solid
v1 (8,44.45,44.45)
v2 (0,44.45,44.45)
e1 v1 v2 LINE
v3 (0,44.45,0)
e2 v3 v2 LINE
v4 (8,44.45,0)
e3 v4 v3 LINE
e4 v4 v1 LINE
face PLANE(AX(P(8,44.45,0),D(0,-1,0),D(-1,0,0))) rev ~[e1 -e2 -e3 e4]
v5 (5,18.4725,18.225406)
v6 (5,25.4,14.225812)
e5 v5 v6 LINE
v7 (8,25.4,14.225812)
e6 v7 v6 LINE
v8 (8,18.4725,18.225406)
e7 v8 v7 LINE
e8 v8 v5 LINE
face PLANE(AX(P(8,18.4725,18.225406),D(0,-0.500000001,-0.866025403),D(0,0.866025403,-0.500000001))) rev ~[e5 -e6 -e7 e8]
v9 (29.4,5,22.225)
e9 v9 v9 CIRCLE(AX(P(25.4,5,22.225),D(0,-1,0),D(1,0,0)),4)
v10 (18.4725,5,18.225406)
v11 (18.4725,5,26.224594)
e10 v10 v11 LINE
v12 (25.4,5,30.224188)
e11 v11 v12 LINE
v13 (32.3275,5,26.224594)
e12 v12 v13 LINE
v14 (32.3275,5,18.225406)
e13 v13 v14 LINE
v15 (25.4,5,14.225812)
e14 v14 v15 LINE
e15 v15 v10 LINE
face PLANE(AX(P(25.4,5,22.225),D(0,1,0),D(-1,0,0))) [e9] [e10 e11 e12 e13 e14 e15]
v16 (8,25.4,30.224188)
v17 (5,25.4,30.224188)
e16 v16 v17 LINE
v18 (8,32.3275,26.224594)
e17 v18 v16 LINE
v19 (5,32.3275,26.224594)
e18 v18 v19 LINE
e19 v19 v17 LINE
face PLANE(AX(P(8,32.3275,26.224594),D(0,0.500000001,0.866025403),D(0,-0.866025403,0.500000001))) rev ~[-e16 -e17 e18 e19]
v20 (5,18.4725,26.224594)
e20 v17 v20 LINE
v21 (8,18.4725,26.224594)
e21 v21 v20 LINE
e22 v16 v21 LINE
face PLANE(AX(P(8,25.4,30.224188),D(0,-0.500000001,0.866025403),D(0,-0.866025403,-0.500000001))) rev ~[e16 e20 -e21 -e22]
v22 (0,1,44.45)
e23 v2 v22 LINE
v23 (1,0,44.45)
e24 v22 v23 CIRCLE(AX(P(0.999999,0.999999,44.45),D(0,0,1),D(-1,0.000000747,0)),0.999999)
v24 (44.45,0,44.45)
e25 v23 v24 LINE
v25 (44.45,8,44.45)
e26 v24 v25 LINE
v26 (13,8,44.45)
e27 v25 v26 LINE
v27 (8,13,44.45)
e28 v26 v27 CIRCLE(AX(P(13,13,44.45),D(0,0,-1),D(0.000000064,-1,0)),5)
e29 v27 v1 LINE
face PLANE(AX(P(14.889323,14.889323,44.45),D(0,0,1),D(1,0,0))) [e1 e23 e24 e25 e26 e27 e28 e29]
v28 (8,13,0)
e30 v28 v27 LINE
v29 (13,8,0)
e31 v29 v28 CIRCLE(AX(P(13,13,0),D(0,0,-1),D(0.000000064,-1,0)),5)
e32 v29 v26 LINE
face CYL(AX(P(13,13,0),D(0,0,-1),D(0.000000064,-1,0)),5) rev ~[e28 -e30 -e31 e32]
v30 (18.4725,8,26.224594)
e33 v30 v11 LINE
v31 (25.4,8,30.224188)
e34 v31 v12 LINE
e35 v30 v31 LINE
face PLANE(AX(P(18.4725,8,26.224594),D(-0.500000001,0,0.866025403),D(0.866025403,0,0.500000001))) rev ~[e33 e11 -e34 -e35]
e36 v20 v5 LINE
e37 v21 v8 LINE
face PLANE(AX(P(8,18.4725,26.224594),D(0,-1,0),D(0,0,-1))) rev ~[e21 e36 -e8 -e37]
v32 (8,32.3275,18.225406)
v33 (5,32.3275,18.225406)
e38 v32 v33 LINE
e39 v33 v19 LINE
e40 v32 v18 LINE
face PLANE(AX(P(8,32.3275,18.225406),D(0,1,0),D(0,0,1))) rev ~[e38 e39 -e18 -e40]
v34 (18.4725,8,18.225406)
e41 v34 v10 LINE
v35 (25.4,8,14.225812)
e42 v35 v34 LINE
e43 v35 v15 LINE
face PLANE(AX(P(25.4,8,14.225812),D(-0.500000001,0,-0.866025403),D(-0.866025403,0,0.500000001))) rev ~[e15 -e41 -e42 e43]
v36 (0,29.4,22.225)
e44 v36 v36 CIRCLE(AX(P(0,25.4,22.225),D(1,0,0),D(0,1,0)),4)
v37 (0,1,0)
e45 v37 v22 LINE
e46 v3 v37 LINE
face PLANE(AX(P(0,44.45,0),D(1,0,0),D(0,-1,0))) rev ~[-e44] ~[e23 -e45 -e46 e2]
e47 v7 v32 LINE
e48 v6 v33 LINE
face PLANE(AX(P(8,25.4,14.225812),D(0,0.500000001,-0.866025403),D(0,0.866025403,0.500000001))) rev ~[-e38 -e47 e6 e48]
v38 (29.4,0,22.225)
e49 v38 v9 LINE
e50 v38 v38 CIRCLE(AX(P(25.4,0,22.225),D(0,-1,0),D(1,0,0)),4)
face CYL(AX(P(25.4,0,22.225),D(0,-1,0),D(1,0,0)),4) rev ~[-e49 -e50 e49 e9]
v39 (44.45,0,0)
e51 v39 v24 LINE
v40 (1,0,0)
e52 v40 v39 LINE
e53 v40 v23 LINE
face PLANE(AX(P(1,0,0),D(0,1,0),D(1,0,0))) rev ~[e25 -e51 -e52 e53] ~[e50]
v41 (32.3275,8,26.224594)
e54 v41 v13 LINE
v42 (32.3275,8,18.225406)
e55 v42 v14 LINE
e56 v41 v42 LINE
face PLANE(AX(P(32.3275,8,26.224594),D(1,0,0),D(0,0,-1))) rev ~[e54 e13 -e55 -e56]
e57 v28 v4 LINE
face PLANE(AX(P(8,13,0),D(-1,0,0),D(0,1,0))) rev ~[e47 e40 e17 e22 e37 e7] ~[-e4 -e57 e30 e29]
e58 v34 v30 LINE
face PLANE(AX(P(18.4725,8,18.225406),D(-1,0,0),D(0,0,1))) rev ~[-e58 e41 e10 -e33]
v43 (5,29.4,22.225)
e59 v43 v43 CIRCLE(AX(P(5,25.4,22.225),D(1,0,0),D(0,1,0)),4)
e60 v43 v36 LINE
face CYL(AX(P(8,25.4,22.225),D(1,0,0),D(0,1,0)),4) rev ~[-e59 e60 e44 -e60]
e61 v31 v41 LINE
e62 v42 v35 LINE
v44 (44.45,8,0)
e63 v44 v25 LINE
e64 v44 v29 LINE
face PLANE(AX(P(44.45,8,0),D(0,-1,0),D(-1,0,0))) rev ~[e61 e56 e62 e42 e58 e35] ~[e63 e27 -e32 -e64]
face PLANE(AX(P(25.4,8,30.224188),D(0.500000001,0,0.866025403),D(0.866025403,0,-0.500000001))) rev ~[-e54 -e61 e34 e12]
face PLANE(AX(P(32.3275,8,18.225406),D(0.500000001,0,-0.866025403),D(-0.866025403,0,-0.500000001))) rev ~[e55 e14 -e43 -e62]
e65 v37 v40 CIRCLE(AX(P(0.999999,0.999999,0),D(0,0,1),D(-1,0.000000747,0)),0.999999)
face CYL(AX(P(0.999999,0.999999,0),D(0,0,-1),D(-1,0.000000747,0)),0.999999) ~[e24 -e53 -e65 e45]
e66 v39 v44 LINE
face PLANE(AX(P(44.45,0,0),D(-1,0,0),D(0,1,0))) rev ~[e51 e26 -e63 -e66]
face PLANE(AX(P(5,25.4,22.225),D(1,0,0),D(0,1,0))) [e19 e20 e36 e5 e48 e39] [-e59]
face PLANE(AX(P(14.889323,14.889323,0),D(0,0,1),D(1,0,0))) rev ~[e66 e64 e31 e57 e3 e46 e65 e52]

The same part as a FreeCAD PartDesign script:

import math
import FreeCAD as App
import Part
import Sketcher

V = App.Vector
Q = App.Units.Quantity


def add_polygon(sketch, points):
    """Adds a closed chain of lines whose ends are joined by coincident constraints."""
    first, n = sketch.GeometryCount, len(points)
    for a, b in zip(points, points[1:] + points[:1]):
        sketch.addGeometry(Part.LineSegment(App.Vector(*a, 0), App.Vector(*b, 0)), False)
    for i in range(n):
        sketch.addConstraint(Sketcher.Constraint("Coincident", first + i, 2, first + (i + 1) % n, 1))

doc = App.newDocument("Part")
body = doc.addObject("PartDesign::Body", "Body")

# Sketch on XY plane
sketch1 = body.newObject("Sketcher::SketchObject", "Sketch")
sketch1.AttachmentSupport = (doc.getObject("XY_Plane"), [""])
sketch1.MapMode = "FlatFace"
sketch1.addGeometry([
    Part.LineSegment(V(8, 44.5, 0), V(0, 44.5, 0)),  # 0
    Part.LineSegment(V(0, 44.5, 0), V(0, 1, 0)),  # 1
    Part.ArcOfCircle(Part.Circle(V(1, 1, 0), V(0, 0, 1), 1), math.radians(180), math.radians(270)),  # 2
    Part.LineSegment(V(1, 0, 0), V(44.5, 0, 0)),  # 3
    Part.LineSegment(V(44.5, 0, 0), V(44.5, 8, 0)),  # 4
    Part.LineSegment(V(44.5, 8, 0), V(13, 8, 0)),  # 5
    Part.ArcOfCircle(Part.Circle(V(13, 13, 0), V(0, 0, 1), 5), math.radians(180), math.radians(270)),  # 6
    Part.LineSegment(V(8, 13, 0), V(8, 44.5, 0)),  # 7
], False)
sketch1.addConstraint([
    Sketcher.Constraint("Coincident", 0, 2, 1, 1),
    Sketcher.Constraint("Tangent", 1, 2, 2, 1),
    Sketcher.Constraint("Tangent", 2, 2, 3, 1),
    Sketcher.Constraint("Coincident", 3, 2, 4, 1),
    Sketcher.Constraint("Coincident", 4, 2, 5, 1),
    Sketcher.Constraint("Tangent", 5, 2, 6, 2),
    Sketcher.Constraint("Tangent", 6, 1, 7, 1),
    Sketcher.Constraint("Coincident", 7, 2, 0, 1),
    Sketcher.Constraint("Horizontal", 0),
    Sketcher.Constraint("Vertical", 1),
    Sketcher.Constraint("Horizontal", 3),
    Sketcher.Constraint("Vertical", 4),
    Sketcher.Constraint("Horizontal", 5),
    Sketcher.Constraint("Vertical", 7),
    Sketcher.Constraint("PointOnObject", 0, 2, -2),
    Sketcher.Constraint("PointOnObject", 2, 2, -1),
    Sketcher.Constraint("Equal", 3, 1),
    Sketcher.Constraint("Equal", 0, 4),
    Sketcher.Constraint("Radius", 2, 0.999999),
    Sketcher.Constraint("Radius", 6, 5.0),
    Sketcher.Constraint("DistanceX", 0, 2, 0, 1, 8.0),
    Sketcher.Constraint("DistanceX", 3, 1, 3, 2, 43.45),
])
pad1 = body.newObject("PartDesign::Pad", "Pad")
pad1.Profile = sketch1
pad1.Length = 44.45

# Sketch on YZ plane
sketch2 = body.newObject("Sketcher::SketchObject", "Sketch001")
sketch2.AttachmentSupport = (doc.getObject("YZ_Plane"), [""])
sketch2.MapMode = "FlatFace"
sketch2.AttachmentOffset = App.Placement(V(0, 0, 8), App.Rotation())
sketch2.addGeometry(Part.Circle(V(25.4, 22.2, 0), V(0, 0, 1), 4), False)
sketch2.addConstraint([
    Sketcher.Constraint("Diameter", 0, 8.0),
    Sketcher.Constraint("DistanceX", -1, 1, 0, 3, 25.4),
    Sketcher.Constraint("DistanceY", -1, 1, 0, 3, 22.225),
])
pocket1 = body.newObject("PartDesign::Pocket", "Pocket")
pocket1.Profile = sketch2
pocket1.Type = "ThroughAll"

# Sketch on XZ plane
sketch3 = body.newObject("Sketcher::SketchObject", "Sketch002")
sketch3.AttachmentSupport = (doc.getObject("XZ_Plane"), [""])
sketch3.MapMode = "FlatFace"
sketch3.addGeometry(Part.Circle(V(25.4, 22.2, 0), V(0, 0, 1), 4), False)
sketch3.addConstraint([
    Sketcher.Constraint("Diameter", 0, 8.0),
    Sketcher.Constraint("DistanceX", -1, 1, 0, 3, 25.4),
    Sketcher.Constraint("DistanceY", -1, 1, 0, 3, 22.225),
])
pocket2 = body.newObject("PartDesign::Pocket", "Pocket001")
pocket2.Profile = sketch3
pocket2.Type = "ThroughAll"

# Sketch on YZ plane
sketch4 = body.newObject("Sketcher::SketchObject", "Sketch003")
sketch4.AttachmentSupport = (doc.getObject("YZ_Plane"), [""])
sketch4.MapMode = "FlatFace"
sketch4.AttachmentOffset = App.Placement(V(0, 0, 8), App.Rotation())
add_polygon(sketch4, [(25, 14), (32, 18), (32, 26), (25, 30), (18, 26), (18, 18)])  # lines 0-5
sketch4.addConstraint([
    Sketcher.Constraint("Vertical", 1),
    Sketcher.Constraint("Vertical", 4),
    Sketcher.Constraint("Parallel", 0, 3),
    Sketcher.Constraint("Parallel", 2, 5),
    Sketcher.Constraint("Horizontal", 1, 2, 3, 2),
    Sketcher.Constraint("Horizontal", 0, 2, 4, 2),
    Sketcher.Constraint("Vertical", 2, 2, 5, 2),
    Sketcher.Constraint("Angle", 0, Q("30 deg")),
    Sketcher.Constraint("DistanceX", -1, 1, 2, 2, 25.4),
    Sketcher.Constraint("DistanceX", 3, 2, 1, 2, 13.855),
    Sketcher.Constraint("DistanceY", 1, 1, 1, 2, 7.999188),
    Sketcher.Constraint("DistanceY", -1, 1, 2, 2, 30.224188),
])
pocket3 = body.newObject("PartDesign::Pocket", "Pocket002")
pocket3.Profile = sketch4
pocket3.Length = 3

# Sketch on XZ plane
sketch5 = body.newObject("Sketcher::SketchObject", "Sketch004")
sketch5.AttachmentSupport = (doc.getObject("XZ_Plane"), [""])
sketch5.MapMode = "FlatFace"
sketch5.AttachmentOffset = App.Placement(V(0, 0, -8), App.Rotation())
add_polygon(sketch5, [(25, 30), (32, 26), (32, 18), (25, 14), (18, 18), (18, 26)])  # lines 0-5
sketch5.addConstraint([
    Sketcher.Constraint("Vertical", 1),
    Sketcher.Constraint("Vertical", 4),
    Sketcher.Constraint("Parallel", 0, 3),
    Sketcher.Constraint("Parallel", 2, 5),
    Sketcher.Constraint("Horizontal", 1, 2, 3, 2),
    Sketcher.Constraint("Horizontal", 0, 2, 4, 2),
    Sketcher.Constraint("Vertical", 2, 2, 5, 2),
    Sketcher.Constraint("Angle", 0, Q("-30 deg")),
    Sketcher.Constraint("DistanceX", -1, 1, 2, 2, 25.4),
    Sketcher.Constraint("DistanceX", 3, 2, 1, 2, 13.855),
    Sketcher.Constraint("DistanceY", 1, 2, 1, 1, 7.999188),
    Sketcher.Constraint("DistanceY", -1, 1, 5, 2, 30.224188),
])
pocket4 = body.newObject("PartDesign::Pocket", "Pocket003")
pocket4.Profile = sketch5
pocket4.Length = 3
pocket4.Reversed = True

doc.recompute()
